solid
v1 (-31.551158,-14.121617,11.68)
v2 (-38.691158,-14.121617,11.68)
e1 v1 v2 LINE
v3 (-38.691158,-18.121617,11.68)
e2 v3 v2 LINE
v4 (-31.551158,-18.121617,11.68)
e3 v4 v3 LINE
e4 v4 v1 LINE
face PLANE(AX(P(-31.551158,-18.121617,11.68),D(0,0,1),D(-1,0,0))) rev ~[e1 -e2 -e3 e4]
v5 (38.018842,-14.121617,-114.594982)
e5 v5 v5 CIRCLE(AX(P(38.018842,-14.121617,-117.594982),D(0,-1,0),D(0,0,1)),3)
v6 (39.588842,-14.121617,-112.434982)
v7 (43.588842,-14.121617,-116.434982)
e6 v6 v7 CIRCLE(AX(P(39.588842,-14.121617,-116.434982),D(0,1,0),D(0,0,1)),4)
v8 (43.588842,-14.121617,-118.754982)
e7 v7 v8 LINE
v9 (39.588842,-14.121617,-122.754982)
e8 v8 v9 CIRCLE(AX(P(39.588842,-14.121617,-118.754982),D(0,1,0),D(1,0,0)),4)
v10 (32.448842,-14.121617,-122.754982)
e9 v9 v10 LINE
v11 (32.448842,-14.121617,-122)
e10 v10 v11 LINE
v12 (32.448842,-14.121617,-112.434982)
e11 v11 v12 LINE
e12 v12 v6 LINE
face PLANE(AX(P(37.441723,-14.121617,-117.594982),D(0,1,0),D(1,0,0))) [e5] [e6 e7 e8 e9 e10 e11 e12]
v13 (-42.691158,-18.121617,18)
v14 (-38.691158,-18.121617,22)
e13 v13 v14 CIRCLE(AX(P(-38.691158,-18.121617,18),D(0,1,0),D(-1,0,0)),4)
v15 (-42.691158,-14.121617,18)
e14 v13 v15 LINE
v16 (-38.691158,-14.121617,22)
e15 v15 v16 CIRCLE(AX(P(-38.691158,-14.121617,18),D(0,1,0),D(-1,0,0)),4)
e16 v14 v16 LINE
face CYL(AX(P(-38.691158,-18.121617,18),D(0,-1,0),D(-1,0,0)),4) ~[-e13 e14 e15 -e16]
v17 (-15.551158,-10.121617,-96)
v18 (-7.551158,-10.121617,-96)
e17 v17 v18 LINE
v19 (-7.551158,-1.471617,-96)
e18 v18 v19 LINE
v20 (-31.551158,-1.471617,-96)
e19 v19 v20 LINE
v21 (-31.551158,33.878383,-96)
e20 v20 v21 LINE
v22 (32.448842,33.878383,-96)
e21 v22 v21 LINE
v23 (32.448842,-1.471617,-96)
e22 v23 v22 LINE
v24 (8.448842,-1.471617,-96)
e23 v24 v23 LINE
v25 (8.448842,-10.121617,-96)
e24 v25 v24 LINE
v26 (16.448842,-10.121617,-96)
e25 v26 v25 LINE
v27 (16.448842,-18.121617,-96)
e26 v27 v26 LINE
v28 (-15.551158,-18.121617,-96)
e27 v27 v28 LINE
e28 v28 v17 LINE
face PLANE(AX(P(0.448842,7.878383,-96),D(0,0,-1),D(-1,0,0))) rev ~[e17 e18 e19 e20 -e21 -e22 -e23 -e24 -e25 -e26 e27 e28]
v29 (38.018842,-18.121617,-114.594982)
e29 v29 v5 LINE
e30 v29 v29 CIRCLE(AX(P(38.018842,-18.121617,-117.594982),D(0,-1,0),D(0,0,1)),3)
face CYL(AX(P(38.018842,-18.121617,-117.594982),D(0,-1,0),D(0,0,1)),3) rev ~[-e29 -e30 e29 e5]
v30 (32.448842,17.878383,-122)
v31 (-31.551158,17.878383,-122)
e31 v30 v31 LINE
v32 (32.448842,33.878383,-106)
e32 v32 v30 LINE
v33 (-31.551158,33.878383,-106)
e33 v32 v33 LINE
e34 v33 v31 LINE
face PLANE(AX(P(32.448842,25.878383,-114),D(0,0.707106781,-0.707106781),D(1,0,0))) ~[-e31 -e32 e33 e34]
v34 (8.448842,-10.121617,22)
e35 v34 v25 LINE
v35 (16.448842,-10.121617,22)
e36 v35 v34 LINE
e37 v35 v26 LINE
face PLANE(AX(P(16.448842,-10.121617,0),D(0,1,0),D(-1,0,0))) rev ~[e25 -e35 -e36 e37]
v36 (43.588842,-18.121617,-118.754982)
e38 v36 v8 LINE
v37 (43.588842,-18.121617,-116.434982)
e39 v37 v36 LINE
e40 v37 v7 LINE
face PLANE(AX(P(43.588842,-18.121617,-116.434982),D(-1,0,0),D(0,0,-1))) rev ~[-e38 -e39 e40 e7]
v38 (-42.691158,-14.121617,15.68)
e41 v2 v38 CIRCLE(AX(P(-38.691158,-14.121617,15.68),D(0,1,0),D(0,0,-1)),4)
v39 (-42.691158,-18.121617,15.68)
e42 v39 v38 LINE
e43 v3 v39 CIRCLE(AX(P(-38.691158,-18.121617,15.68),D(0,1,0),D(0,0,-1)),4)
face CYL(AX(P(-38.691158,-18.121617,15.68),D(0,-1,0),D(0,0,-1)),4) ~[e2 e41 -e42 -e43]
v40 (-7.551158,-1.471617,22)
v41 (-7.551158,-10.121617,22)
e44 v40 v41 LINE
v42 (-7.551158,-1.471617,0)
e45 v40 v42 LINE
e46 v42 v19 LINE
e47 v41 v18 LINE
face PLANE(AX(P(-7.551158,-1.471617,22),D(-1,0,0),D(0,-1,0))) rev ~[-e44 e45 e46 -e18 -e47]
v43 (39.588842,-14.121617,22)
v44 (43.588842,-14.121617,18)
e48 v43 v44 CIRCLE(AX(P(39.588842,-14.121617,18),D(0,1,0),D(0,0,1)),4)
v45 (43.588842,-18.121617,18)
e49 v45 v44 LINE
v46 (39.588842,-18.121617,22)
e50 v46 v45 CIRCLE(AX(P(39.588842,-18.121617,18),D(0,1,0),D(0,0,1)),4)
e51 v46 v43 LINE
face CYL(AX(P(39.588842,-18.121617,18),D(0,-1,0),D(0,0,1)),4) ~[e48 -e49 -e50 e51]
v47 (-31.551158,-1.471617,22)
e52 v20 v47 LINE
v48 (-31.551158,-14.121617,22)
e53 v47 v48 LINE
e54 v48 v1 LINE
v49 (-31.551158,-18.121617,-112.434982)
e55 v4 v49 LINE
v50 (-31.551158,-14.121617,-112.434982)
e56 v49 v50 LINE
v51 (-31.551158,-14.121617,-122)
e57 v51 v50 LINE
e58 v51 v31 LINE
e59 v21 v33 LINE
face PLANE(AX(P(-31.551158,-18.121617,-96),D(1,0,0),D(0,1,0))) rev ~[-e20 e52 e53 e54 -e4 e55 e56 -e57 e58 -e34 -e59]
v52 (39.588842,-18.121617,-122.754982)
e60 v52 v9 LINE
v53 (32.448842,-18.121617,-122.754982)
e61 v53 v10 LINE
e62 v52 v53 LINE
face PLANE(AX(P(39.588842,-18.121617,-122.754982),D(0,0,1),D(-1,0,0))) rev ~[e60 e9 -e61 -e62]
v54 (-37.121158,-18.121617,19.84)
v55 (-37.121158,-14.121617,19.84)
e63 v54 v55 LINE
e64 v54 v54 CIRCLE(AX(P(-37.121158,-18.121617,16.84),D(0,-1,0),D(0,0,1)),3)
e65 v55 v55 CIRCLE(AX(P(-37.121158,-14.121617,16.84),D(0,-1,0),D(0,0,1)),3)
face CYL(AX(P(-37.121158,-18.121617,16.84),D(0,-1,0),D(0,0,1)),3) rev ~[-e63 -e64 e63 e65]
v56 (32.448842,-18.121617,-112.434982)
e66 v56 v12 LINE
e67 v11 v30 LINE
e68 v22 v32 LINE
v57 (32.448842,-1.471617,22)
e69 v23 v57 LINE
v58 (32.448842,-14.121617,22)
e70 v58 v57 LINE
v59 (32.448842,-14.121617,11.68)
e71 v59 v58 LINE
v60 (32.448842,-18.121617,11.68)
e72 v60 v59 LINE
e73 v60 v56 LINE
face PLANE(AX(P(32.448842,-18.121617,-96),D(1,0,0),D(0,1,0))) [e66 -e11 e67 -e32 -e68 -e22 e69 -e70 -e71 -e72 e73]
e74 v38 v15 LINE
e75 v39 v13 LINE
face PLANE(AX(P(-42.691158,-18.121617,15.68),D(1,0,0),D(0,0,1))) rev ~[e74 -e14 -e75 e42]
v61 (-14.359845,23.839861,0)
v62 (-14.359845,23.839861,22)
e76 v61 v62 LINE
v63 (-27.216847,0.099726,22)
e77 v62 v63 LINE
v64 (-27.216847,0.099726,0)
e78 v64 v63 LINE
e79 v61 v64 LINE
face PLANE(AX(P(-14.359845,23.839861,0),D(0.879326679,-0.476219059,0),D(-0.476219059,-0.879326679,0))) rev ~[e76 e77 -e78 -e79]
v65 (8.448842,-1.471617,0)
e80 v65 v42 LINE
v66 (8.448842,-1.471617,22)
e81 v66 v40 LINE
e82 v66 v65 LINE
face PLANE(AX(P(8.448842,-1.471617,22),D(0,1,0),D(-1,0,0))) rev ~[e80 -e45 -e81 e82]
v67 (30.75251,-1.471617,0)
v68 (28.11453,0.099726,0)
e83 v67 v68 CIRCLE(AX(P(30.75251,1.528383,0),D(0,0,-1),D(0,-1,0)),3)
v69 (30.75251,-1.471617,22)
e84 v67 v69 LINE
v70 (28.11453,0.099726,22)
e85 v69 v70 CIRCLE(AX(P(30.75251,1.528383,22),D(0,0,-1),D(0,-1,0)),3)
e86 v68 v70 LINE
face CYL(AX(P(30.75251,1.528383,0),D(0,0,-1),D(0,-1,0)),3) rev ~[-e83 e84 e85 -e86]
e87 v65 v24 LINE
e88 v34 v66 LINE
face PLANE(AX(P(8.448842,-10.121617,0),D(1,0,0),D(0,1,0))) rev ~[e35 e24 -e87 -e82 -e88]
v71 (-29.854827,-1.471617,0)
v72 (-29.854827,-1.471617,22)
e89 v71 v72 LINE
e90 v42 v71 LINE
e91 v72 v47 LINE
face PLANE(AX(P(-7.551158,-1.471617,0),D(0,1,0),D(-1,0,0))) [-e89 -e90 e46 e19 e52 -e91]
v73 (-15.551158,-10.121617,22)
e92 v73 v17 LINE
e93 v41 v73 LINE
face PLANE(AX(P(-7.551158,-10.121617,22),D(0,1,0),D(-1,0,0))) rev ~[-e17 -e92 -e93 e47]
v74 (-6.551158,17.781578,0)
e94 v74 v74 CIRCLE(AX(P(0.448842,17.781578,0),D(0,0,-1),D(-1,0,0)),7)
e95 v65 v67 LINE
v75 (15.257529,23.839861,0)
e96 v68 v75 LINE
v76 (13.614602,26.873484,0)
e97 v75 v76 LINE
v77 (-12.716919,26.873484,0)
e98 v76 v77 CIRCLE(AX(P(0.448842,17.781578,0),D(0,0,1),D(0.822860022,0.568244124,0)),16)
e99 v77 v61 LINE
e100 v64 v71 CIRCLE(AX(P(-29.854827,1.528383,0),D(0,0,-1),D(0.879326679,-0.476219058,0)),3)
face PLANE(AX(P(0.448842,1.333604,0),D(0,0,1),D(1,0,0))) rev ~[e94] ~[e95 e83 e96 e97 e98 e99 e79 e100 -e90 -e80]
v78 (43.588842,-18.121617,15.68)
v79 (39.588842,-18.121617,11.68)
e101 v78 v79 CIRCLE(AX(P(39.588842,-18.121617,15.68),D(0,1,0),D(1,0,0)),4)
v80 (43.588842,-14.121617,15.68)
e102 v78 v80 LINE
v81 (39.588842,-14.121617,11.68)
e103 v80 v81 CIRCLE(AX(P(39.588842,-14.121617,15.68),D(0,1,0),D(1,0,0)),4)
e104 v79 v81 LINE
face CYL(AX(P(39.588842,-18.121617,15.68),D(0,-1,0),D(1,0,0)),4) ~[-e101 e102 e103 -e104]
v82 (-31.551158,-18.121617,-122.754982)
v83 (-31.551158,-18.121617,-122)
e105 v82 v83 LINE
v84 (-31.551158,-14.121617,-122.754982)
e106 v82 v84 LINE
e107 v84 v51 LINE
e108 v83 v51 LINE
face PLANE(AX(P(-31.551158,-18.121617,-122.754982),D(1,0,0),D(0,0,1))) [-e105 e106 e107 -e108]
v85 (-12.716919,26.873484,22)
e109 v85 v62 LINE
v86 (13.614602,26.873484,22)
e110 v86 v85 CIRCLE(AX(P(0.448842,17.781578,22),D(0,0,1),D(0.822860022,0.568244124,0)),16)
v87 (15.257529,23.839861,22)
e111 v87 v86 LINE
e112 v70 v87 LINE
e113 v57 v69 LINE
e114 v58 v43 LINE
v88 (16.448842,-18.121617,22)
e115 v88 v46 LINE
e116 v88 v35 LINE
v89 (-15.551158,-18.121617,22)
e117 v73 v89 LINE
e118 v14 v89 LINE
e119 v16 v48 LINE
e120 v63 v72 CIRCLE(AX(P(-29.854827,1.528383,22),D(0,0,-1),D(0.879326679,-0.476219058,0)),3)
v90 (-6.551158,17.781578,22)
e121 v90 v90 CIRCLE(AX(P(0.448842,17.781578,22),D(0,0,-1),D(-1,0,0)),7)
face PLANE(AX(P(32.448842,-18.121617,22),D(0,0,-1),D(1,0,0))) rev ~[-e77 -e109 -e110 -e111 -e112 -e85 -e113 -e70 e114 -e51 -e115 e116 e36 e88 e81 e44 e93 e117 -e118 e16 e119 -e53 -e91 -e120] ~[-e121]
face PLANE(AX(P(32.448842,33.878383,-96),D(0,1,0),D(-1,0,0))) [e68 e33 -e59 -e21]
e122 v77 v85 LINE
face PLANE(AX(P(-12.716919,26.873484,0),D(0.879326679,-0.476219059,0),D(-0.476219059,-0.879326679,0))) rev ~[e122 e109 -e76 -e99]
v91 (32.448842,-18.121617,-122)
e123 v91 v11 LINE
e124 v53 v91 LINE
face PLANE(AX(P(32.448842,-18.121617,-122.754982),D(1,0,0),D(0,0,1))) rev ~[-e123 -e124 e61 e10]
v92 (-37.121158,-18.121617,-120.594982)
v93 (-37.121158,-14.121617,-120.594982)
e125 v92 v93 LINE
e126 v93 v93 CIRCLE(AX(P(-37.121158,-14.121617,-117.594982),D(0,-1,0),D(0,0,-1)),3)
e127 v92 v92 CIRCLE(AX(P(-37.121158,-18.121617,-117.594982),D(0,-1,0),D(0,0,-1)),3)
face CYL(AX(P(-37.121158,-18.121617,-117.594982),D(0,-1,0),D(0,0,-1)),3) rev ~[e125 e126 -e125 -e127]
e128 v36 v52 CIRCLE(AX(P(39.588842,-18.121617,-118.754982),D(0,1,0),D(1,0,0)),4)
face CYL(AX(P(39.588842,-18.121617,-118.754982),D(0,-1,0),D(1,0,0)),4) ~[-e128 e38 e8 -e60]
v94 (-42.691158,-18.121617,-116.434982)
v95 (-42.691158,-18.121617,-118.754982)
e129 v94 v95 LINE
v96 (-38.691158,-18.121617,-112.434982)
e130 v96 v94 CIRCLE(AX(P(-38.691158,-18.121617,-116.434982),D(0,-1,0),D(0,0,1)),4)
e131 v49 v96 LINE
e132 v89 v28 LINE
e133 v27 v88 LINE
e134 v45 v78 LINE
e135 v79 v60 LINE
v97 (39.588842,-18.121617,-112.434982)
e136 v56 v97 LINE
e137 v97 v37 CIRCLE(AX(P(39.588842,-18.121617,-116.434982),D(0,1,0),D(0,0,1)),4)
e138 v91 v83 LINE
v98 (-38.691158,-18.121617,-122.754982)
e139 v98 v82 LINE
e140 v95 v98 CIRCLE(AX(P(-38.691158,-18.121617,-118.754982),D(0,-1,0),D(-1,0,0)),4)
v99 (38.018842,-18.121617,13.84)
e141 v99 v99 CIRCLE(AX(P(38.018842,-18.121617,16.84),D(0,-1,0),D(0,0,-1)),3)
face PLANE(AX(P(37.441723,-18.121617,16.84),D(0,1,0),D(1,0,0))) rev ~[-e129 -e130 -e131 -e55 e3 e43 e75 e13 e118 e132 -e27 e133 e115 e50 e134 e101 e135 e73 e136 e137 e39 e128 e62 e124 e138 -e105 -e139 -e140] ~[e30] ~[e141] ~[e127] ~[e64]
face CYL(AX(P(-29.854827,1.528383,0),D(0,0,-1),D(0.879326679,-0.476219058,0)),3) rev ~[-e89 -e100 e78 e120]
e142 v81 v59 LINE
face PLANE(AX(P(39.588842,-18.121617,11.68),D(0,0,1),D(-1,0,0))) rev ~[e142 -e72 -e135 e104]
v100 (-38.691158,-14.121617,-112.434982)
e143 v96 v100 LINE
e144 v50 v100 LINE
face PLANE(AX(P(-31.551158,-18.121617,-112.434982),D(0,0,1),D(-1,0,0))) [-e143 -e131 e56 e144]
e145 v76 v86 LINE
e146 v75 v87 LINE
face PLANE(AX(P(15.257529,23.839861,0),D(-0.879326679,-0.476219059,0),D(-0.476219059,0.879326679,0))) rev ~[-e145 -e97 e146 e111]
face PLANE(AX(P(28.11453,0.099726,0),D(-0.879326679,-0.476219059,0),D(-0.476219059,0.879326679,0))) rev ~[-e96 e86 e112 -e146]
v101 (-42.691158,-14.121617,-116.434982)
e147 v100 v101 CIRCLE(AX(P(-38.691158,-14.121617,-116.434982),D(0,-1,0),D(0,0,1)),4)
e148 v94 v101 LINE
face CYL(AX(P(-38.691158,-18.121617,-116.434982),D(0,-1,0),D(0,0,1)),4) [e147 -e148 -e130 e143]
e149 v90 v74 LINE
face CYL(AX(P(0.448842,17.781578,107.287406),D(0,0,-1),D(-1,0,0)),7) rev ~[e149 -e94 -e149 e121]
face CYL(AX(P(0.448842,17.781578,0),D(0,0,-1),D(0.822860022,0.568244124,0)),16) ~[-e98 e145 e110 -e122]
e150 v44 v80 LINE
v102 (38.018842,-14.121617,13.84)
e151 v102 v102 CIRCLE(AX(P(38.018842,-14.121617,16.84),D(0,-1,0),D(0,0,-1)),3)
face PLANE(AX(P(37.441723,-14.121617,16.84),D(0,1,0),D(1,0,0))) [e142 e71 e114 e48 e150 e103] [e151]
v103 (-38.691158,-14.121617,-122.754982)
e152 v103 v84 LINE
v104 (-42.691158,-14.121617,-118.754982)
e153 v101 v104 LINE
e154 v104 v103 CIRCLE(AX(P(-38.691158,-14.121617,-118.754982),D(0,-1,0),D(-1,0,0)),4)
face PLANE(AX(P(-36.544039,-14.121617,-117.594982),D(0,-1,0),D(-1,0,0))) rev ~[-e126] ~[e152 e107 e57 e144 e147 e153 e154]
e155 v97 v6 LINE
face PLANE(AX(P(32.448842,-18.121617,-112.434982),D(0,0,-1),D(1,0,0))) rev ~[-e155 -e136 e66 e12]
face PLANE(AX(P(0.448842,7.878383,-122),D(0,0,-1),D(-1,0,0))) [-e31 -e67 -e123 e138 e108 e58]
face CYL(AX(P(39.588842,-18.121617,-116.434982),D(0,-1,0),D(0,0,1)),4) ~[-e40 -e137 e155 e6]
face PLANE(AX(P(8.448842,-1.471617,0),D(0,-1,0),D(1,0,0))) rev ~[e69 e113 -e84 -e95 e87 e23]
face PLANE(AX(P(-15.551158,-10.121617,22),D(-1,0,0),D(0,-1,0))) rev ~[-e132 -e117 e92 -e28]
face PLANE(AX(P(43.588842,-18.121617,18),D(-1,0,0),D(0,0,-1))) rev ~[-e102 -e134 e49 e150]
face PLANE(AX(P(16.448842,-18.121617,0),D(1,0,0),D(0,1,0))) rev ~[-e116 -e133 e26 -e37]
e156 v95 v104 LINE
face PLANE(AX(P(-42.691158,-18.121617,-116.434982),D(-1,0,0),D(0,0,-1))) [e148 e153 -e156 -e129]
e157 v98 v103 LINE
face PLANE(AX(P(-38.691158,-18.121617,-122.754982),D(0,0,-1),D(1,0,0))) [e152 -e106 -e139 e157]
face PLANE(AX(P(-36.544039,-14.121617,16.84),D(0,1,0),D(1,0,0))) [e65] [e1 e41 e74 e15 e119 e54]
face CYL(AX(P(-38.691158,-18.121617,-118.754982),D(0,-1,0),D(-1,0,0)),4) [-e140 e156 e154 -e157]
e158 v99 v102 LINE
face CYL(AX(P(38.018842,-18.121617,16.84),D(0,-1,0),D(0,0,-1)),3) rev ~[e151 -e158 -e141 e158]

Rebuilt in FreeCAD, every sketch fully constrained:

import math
import FreeCAD as App
import Part
import Sketcher


def edges_at(feature, points):
    """Names of the edges that pass closest to the given points."""
    edges = feature.Shape.Edges
    near = lambda p: min(range(len(edges)), key=lambda i: edges[i].distToShape(Part.Vertex(*p))[0])
    return sorted({f"Edge{near(p) + 1}" for p in points})

doc = App.newDocument("Part")
body = doc.addObject("PartDesign::Body", "Body")

# Sketch on XY plane
sketch1 = body.newObject("Sketcher::SketchObject", "Sketch")
sketch1.AttachmentSupport = (doc.getObject("XY_Plane"), [""])
sketch1.MapMode = "FlatFace"
sketch1.addGeometry(Part.LineSegment(App.Vector(-31.6, -1.5, 0), App.Vector(-31.6, -18.1, 0)), False)
sketch1.addGeometry(Part.LineSegment(App.Vector(-31.6, -18.1, 0), App.Vector(32.4, -18.1, 0)), False)
sketch1.addGeometry(Part.LineSegment(App.Vector(32.4, -18.1, 0), App.Vector(32.4, -1.5, 0)), False)
sketch1.addGeometry(Part.LineSegment(App.Vector(32.4, -1.5, 0), App.Vector(30.8, -1.5, 0)), False)
sketch1.addGeometry(Part.ArcOfCircle(Part.Circle(App.Vector(30.8, 1.5, 0), App.Vector(0, 0, 1), 3), math.radians(-152), math.radians(-90)), False)
sketch1.addGeometry(Part.LineSegment(App.Vector(28.1, 0.1, 0), App.Vector(15.3, 23.8, 0)), False)
sketch1.addGeometry(Part.LineSegment(App.Vector(15.3, 23.8, 0), App.Vector(13.6, 26.9, 0)), False)
sketch1.addGeometry(Part.ArcOfCircle(Part.Circle(App.Vector(0.4, 17.8, 0), App.Vector(0, 0, 1), 16), math.radians(35), math.radians(145)), False)
sketch1.addGeometry(Part.LineSegment(App.Vector(-12.7, 26.9, 0), App.Vector(-14.4, 23.8, 0)), False)
sketch1.addGeometry(Part.LineSegment(App.Vector(-14.4, 23.8, 0), App.Vector(-27.2, 0.1, 0)), False)
sketch1.addGeometry(Part.ArcOfCircle(Part.Circle(App.Vector(-29.9, 1.5, 0), App.Vector(0, 0, 1), 3), math.radians(-90), math.radians(-28)), False)
sketch1.addGeometry(Part.LineSegment(App.Vector(-29.9, -1.5, 0), App.Vector(-31.6, -1.5, 0)), False)
sketch1.addConstraint(Sketcher.Constraint("Coincident", 0, 2, 1, 1))
sketch1.addConstraint(Sketcher.Constraint("Coincident", 1, 2, 2, 1))
sketch1.addConstraint(Sketcher.Constraint("Coincident", 2, 2, 3, 1))
sketch1.addConstraint(Sketcher.Constraint("Tangent", 3, 2, 4, 2))
sketch1.addConstraint(Sketcher.Constraint("Tangent", 4, 1, 5, 1))
sketch1.addConstraint(Sketcher.Constraint("Coincident", 5, 2, 6, 1))
sketch1.addConstraint(Sketcher.Constraint("Coincident", 6, 2, 7, 1))
sketch1.addConstraint(Sketcher.Constraint("Coincident", 7, 2, 8, 1))
sketch1.addConstraint(Sketcher.Constraint("Coincident", 8, 2, 9, 1))
sketch1.addConstraint(Sketcher.Constraint("Tangent", 9, 2, 10, 2))
sketch1.addConstraint(Sketcher.Constraint("Tangent", 10, 1, 11, 1))
sketch1.addConstraint(Sketcher.Constraint("Coincident", 11, 2, 0, 1))
sketch1.addConstraint(Sketcher.Constraint("Vertical", 0))
sketch1.addConstraint(Sketcher.Constraint("Horizontal", 1))
sketch1.addConstraint(Sketcher.Constraint("Vertical", 2))
sketch1.addConstraint(Sketcher.Constraint("Horizontal", 3))
sketch1.addConstraint(Sketcher.Constraint("Horizontal", 11))
sketch1.addConstraint(Sketcher.Constraint("Equal", 4, 10))
sketch1.addConstraint(Sketcher.Constraint("Parallel", 5, 6))
sketch1.addConstraint(Sketcher.Constraint("Parallel", 8, 9))
sketch1.addConstraint(Sketcher.Constraint("Horizontal", 4, 3, 10, 3))
sketch1.addConstraint(Sketcher.Constraint("Horizontal", 6, 2, 7, 2))
sketch1.addConstraint(Sketcher.Constraint("Horizontal", 5, 2, 8, 2))
sketch1.addConstraint(Sketcher.Constraint("Horizontal", 4, 1, 9, 2))
sketch1.addConstraint(Sketcher.Constraint("Equal", 3, 11))
sketch1.addConstraint(Sketcher.Constraint("Radius", 4, 3.0))
sketch1.addConstraint(Sketcher.Constraint("Radius", 7, 16.0))
sketch1.addConstraint(Sketcher.Constraint("DistanceX", 1, 1, 1, 2, 64.0))
sketch1.addConstraint(Sketcher.Constraint("DistanceY", 0, 2, 0, 1, 16.65))
sketch1.addConstraint(Sketcher.Constraint("DistanceX", 5, 2, 4, 1, 12.857002))
sketch1.addConstraint(Sketcher.Constraint("DistanceX", 3, 2, 3, 1, 1.696331))
sketch1.addConstraint(Sketcher.Constraint("DistanceX", -1, 1, 6, 2, 13.614602))
sketch1.addConstraint(Sketcher.Constraint("DistanceY", 4, 3, 6, 2, 25.345101))
sketch1.addConstraint(Sketcher.Constraint("Distance", 6, 3.449939))
sketch1.addConstraint(Sketcher.Constraint("DistanceY", -1, 1, 7, 3, 17.781578))
pad1 = body.newObject("PartDesign::Pad", "Pad")
pad1.Profile = sketch1
pad1.Length = 22

# Sketch on XY plane
sketch2 = body.newObject("Sketcher::SketchObject", "Sketch001")
sketch2.AttachmentSupport = (doc.getObject("XY_Plane"), [""])
sketch2.MapMode = "FlatFace"
sketch2.AttachmentOffset = App.Placement(App.Vector(0, 0, 22), App.Rotation())
sketch2.addGeometry(Part.Circle(App.Vector(0, 18, 0), App.Vector(0, 0, 1), 7), False)
sketch2.addConstraint(Sketcher.Constraint("Diameter", 0, 14.0))
sketch2.addConstraint(Sketcher.Constraint("DistanceX", -1, 1, 0, 3, 0.448842))
sketch2.addConstraint(Sketcher.Constraint("DistanceY", -1, 1, 0, 3, 17.781578))
doc.recompute()
hole = body.newObject("PartDesign::Hole", "Hole")
hole.Profile = sketch2
hole.ThreadType = "None"
hole.Diameter = 14
hole.DepthType = "ThroughAll"

# Sketch on XY plane
sketch3 = body.newObject("Sketcher::SketchObject", "Sketch002")
sketch3.AttachmentSupport = (doc.getObject("XY_Plane"), [""])
sketch3.MapMode = "FlatFace"
sketch3.addGeometry(Part.LineSegment(App.Vector(16, -10, 0), App.Vector(16, -18, 0)), False)
sketch3.addGeometry(Part.LineSegment(App.Vector(16, -18, 0), App.Vector(32, -18, 0)), False)
sketch3.addGeometry(Part.LineSegment(App.Vector(32, -18, 0), App.Vector(32, -1, 0)), False)
sketch3.addGeometry(Part.LineSegment(App.Vector(32, -1, 0), App.Vector(8, -1, 0)), False)
sketch3.addGeometry(Part.LineSegment(App.Vector(8, -1, 0), App.Vector(8, -10, 0)), False)
sketch3.addGeometry(Part.LineSegment(App.Vector(8, -10, 0), App.Vector(16, -10, 0)), False)
sketch3.addGeometry(Part.LineSegment(App.Vector(-8, -10, 0), App.Vector(-8, -1, 0)), False)
sketch3.addGeometry(Part.LineSegment(App.Vector(-8, -1, 0), App.Vector(-32, -1, 0)), False)
sketch3.addGeometry(Part.LineSegment(App.Vector(-32, -1, 0), App.Vector(-32, -18, 0)), False)
sketch3.addGeometry(Part.LineSegment(App.Vector(-32, -18, 0), App.Vector(-16, -18, 0)), False)
sketch3.addGeometry(Part.LineSegment(App.Vector(-16, -18, 0), App.Vector(-16, -10, 0)), False)
sketch3.addGeometry(Part.LineSegment(App.Vector(-16, -10, 0), App.Vector(-8, -10, 0)), False)
sketch3.addConstraint(Sketcher.Constraint("Coincident", 0, 2, 1, 1))
sketch3.addConstraint(Sketcher.Constraint("Coincident", 1, 2, 2, 1))
sketch3.addConstraint(Sketcher.Constraint("Coincident", 2, 2, 3, 1))
sketch3.addConstraint(Sketcher.Constraint("Coincident", 3, 2, 4, 1))
sketch3.addConstraint(Sketcher.Constraint("Coincident", 4, 2, 5, 1))
sketch3.addConstraint(Sketcher.Constraint("Coincident", 5, 2, 0, 1))
sketch3.addConstraint(Sketcher.Constraint("Coincident", 6, 2, 7, 1))
sketch3.addConstraint(Sketcher.Constraint("Coincident", 7, 2, 8, 1))
sketch3.addConstraint(Sketcher.Constraint("Coincident", 8, 2, 9, 1))
sketch3.addConstraint(Sketcher.Constraint("Coincident", 9, 2, 10, 1))
sketch3.addConstraint(Sketcher.Constraint("Coincident", 10, 2, 11, 1))
sketch3.addConstraint(Sketcher.Constraint("Coincident", 11, 2, 6, 1))
sketch3.addConstraint(Sketcher.Constraint("Vertical", 0))
sketch3.addConstraint(Sketcher.Constraint("Horizontal", 1))
sketch3.addConstraint(Sketcher.Constraint("Vertical", 2))
sketch3.addConstraint(Sketcher.Constraint("Horizontal", 3))
sketch3.addConstraint(Sketcher.Constraint("Vertical", 4))
sketch3.addConstraint(Sketcher.Constraint("Horizontal", 5))
sketch3.addConstraint(Sketcher.Constraint("Vertical", 6))
sketch3.addConstraint(Sketcher.Constraint("Horizontal", 7))
sketch3.addConstraint(Sketcher.Constraint("Vertical", 8))
sketch3.addConstraint(Sketcher.Constraint("Horizontal", 9))
sketch3.addConstraint(Sketcher.Constraint("Vertical", 10))
sketch3.addConstraint(Sketcher.Constraint("Horizontal", 11))
sketch3.addConstraint(Sketcher.Constraint("Horizontal", 3, 2, 6, 2))
sketch3.addConstraint(Sketcher.Constraint("Horizontal", 1, 2, 8, 2))
sketch3.addConstraint(Sketcher.Constraint("Horizontal", 5, 2, 10, 2))
sketch3.addConstraint(Sketcher.Constraint("Equal", 3, 7))
sketch3.addConstraint(Sketcher.Constraint("Equal", 1, 9))
sketch3.addConstraint(Sketcher.Constraint("Equal", 11, 0))
sketch3.addConstraint(Sketcher.Constraint("DistanceX", 1, 1, 1, 2, 16.0))
sketch3.addConstraint(Sketcher.Constraint("DistanceX", 3, 2, 3, 1, 24.0))
sketch3.addConstraint(Sketcher.Constraint("DistanceX", 6, 2, 3, 2, 16.0))
sketch3.addConstraint(Sketcher.Constraint("DistanceY", 2, 1, 2, 2, 16.65))
sketch3.addConstraint(Sketcher.Constraint("DistanceX", -1, 1, 0, 2, 16.448842))
sketch3.addConstraint(Sketcher.Constraint("DistanceY", 0, 2, -1, 1, 18.121617))
pad2 = body.newObject("PartDesign::Pad", "Pad001")
pad2.Profile = sketch3
pad2.Length = 96
pad2.Reversed = True

# Sketch on XY plane
sketch4 = body.newObject("Sketcher::SketchObject", "Sketch003")
sketch4.AttachmentSupport = (doc.getObject("XY_Plane"), [""])
sketch4.MapMode = "FlatFace"
sketch4.AttachmentOffset = App.Placement(App.Vector(0, 0, 22), App.Rotation())
sketch4.addGeometry(Part.LineSegment(App.Vector(-16, -18, 0), App.Vector(16, -18, 0)), False)
sketch4.addGeometry(Part.LineSegment(App.Vector(16, -18, 0), App.Vector(16, -10, 0)), False)
sketch4.addGeometry(Part.LineSegment(App.Vector(16, -10, 0), App.Vector(8, -10, 0)), False)
sketch4.addGeometry(Part.LineSegment(App.Vector(8, -10, 0), App.Vector(8, -1, 0)), False)
sketch4.addGeometry(Part.LineSegment(App.Vector(8, -1, 0), App.Vector(-8, -1, 0)), False)
sketch4.addGeometry(Part.LineSegment(App.Vector(-8, -1, 0), App.Vector(-8, -10, 0)), False)
sketch4.addGeometry(Part.LineSegment(App.Vector(-8, -10, 0), App.Vector(-16, -10, 0)), False)
sketch4.addGeometry(Part.LineSegment(App.Vector(-16, -10, 0), App.Vector(-16, -18, 0)), False)
sketch4.addConstraint(Sketcher.Constraint("Coincident", 0, 2, 1, 1))
sketch4.addConstraint(Sketcher.Constraint("Coincident", 1, 2, 2, 1))
sketch4.addConstraint(Sketcher.Constraint("Coincident", 2, 2, 3, 1))
sketch4.addConstraint(Sketcher.Constraint("Coincident", 3, 2, 4, 1))
sketch4.addConstraint(Sketcher.Constraint("Coincident", 4, 2, 5, 1))
sketch4.addConstraint(Sketcher.Constraint("Coincident", 5, 2, 6, 1))
sketch4.addConstraint(Sketcher.Constraint("Coincident", 6, 2, 7, 1))
sketch4.addConstraint(Sketcher.Constraint("Coincident", 7, 2, 0, 1))
sketch4.addConstraint(Sketcher.Constraint("Horizontal", 0))
sketch4.addConstraint(Sketcher.Constraint("Vertical", 1))
sketch4.addConstraint(Sketcher.Constraint("Horizontal", 2))
sketch4.addConstraint(Sketcher.Constraint("Vertical", 3))
sketch4.addConstraint(Sketcher.Constraint("Horizontal", 4))
sketch4.addConstraint(Sketcher.Constraint("Vertical", 5))
sketch4.addConstraint(Sketcher.Constraint("Horizontal", 6))
sketch4.addConstraint(Sketcher.Constraint("Vertical", 7))
sketch4.addConstraint(Sketcher.Constraint("Horizontal", 2, 2, 5, 2))
sketch4.addConstraint(Sketcher.Constraint("Equal", 2, 6))
sketch4.addConstraint(Sketcher.Constraint("Equal", 6, 1))
sketch4.addConstraint(Sketcher.Constraint("DistanceX", 0, 1, 0, 2, 32.0))
sketch4.addConstraint(Sketcher.Constraint("DistanceX", 2, 2, 2, 1, 8.0))
sketch4.addConstraint(Sketcher.Constraint("DistanceY", 3, 1, 3, 2, 8.65))
sketch4.addConstraint(Sketcher.Constraint("DistanceX", -1, 1, 0, 2, 16.448842))
sketch4.addConstraint(Sketcher.Constraint("DistanceY", 0, 2, -1, 1, 18.121617))
pocket1 = body.newObject("PartDesign::Pocket", "Pocket")
pocket1.Profile = sketch4
pocket1.Type = "ThroughAll"

# Sketch on XY plane
sketch5 = body.newObject("Sketcher::SketchObject", "Sketch004")
sketch5.AttachmentSupport = (doc.getObject("XY_Plane"), [""])
sketch5.MapMode = "FlatFace"
sketch5.AttachmentOffset = App.Placement(App.Vector(0, 0, -96), App.Rotation())
sketch5.addGeometry(Part.LineSegment(App.Vector(32, 34, 0), App.Vector(32, -18, 0)), False)
sketch5.addGeometry(Part.LineSegment(App.Vector(32, -18, 0), App.Vector(-32, -18, 0)), False)
sketch5.addGeometry(Part.LineSegment(App.Vector(-32, -18, 0), App.Vector(-32, 34, 0)), False)
sketch5.addGeometry(Part.LineSegment(App.Vector(-32, 34, 0), App.Vector(32, 34, 0)), False)
sketch5.addConstraint(Sketcher.Constraint("Coincident", 0, 2, 1, 1))
sketch5.addConstraint(Sketcher.Constraint("Coincident", 1, 2, 2, 1))
sketch5.addConstraint(Sketcher.Constraint("Coincident", 2, 2, 3, 1))
sketch5.addConstraint(Sketcher.Constraint("Coincident", 3, 2, 0, 1))
sketch5.addConstraint(Sketcher.Constraint("Vertical", 0))
sketch5.addConstraint(Sketcher.Constraint("Horizontal", 1))
sketch5.addConstraint(Sketcher.Constraint("Vertical", 2))
sketch5.addConstraint(Sketcher.Constraint("Horizontal", 3))
sketch5.addConstraint(Sketcher.Constraint("DistanceX", 1, 2, 1, 1, 64.0))
sketch5.addConstraint(Sketcher.Constraint("DistanceY", 0, 2, 0, 1, 52.0))
sketch5.addConstraint(Sketcher.Constraint("DistanceX", -1, 1, 0, 2, 32.448842))
sketch5.addConstraint(Sketcher.Constraint("DistanceY", 0, 2, -1, 1, 18.121617))
pad3 = body.newObject("PartDesign::Pad", "Pad002")
pad3.Profile = sketch5
pad3.Length = 26
pad3.Reversed = True
doc.recompute()

chamfer = body.newObject("PartDesign::Chamfer", "Chamfer")
chamfer.Base = (pad3, edges_at(pad3, [(0.449, 33.878, -122)]))
chamfer.Size = 16

# Sketch on XZ plane
sketch6 = body.newObject("Sketcher::SketchObject", "Sketch005")
sketch6.AttachmentSupport = (doc.getObject("XZ_Plane"), [""])
sketch6.MapMode = "FlatFace"
sketch6.AttachmentOffset = App.Placement(App.Vector(0, 0, 18.121617), App.Rotation())
sketch6.addGeometry(Part.LineSegment(App.Vector(39.6, 22, 0), App.Vector(32.4, 22, 0)), False)
sketch6.addGeometry(Part.LineSegment(App.Vector(32.4, 22, 0), App.Vector(32.4, 11.7, 0)), False)
sketch6.addGeometry(Part.LineSegment(App.Vector(32.4, 11.7, 0), App.Vector(39.6, 11.7, 0)), False)
sketch6.addGeometry(Part.ArcOfCircle(Part.Circle(App.Vector(39.6, 15.7, 0), App.Vector(0, 0, 1), 4), math.radians(-90), math.radians(0)), False)
sketch6.addGeometry(Part.LineSegment(App.Vector(43.6, 15.7, 0), App.Vector(43.6, 18, 0)), False)
sketch6.addGeometry(Part.ArcOfCircle(Part.Circle(App.Vector(39.6, 18, 0), App.Vector(0, 0, 1), 4), math.radians(0), math.radians(90)), False)
sketch6.addGeometry(Part.Circle(App.Vector(38, 16.8, 0), App.Vector(0, 0, 1), 3), False)
sketch6.addGeometry(Part.LineSegment(App.Vector(-38.7, 11.7, 0), App.Vector(-31.6, 11.7, 0)), False)
sketch6.addGeometry(Part.LineSegment(App.Vector(-31.6, 11.7, 0), App.Vector(-31.6, 22, 0)), False)
sketch6.addGeometry(Part.LineSegment(App.Vector(-31.6, 22, 0), App.Vector(-38.7, 22, 0)), False)
sketch6.addGeometry(Part.ArcOfCircle(Part.Circle(App.Vector(-38.7, 18, 0), App.Vector(0, 0, 1), 4), math.radians(90), math.radians(180)), False)
sketch6.addGeometry(Part.LineSegment(App.Vector(-42.7, 18, 0), App.Vector(-42.7, 15.7, 0)), False)
sketch6.addGeometry(Part.ArcOfCircle(Part.Circle(App.Vector(-38.7, 15.7, 0), App.Vector(0, 0, 1), 4), math.radians(-180), math.radians(-90)), False)
sketch6.addGeometry(Part.Circle(App.Vector(-37.1, 16.8, 0), App.Vector(0, 0, 1), 3), False)
sketch6.addGeometry(Part.LineSegment(App.Vector(39.6, -112.4, 0), App.Vector(32.4, -112.4, 0)), False)
sketch6.addGeometry(Part.LineSegment(App.Vector(32.4, -112.4, 0), App.Vector(32.4, -122.8, 0)), False)
sketch6.addGeometry(Part.LineSegment(App.Vector(32.4, -122.8, 0), App.Vector(39.6, -122.8, 0)), False)
sketch6.addGeometry(Part.ArcOfCircle(Part.Circle(App.Vector(39.6, -118.8, 0), App.Vector(0, 0, 1), 4), math.radians(-90), math.radians(0)), False)
sketch6.addGeometry(Part.LineSegment(App.Vector(43.6, -118.8, 0), App.Vector(43.6, -116.4, 0)), False)
sketch6.addGeometry(Part.ArcOfCircle(Part.Circle(App.Vector(39.6, -116.4, 0), App.Vector(0, 0, 1), 4), math.radians(0), math.radians(90)), False)
sketch6.addGeometry(Part.Circle(App.Vector(38, -117.6, 0), App.Vector(0, 0, 1), 3), False)
sketch6.addGeometry(Part.LineSegment(App.Vector(-31.6, -122.8, 0), App.Vector(-31.6, -112.4, 0)), False)
sketch6.addGeometry(Part.LineSegment(App.Vector(-31.6, -112.4, 0), App.Vector(-38.7, -112.4, 0)), False)
sketch6.addGeometry(Part.ArcOfCircle(Part.Circle(App.Vector(-38.7, -116.4, 0), App.Vector(0, 0, 1), 4), math.radians(90), math.radians(180)), False)
sketch6.addGeometry(Part.LineSegment(App.Vector(-42.7, -116.4, 0), App.Vector(-42.7, -118.8, 0)), False)
sketch6.addGeometry(Part.ArcOfCircle(Part.Circle(App.Vector(-38.7, -118.8, 0), App.Vector(0, 0, 1), 4), math.radians(-180), math.radians(-90)), False)
sketch6.addGeometry(Part.LineSegment(App.Vector(-38.7, -122.8, 0), App.Vector(-31.6, -122.8, 0)), False)
sketch6.addGeometry(Part.Circle(App.Vector(-37.1, -117.6, 0), App.Vector(0, 0, 1), 3), False)
sketch6.addConstraint(Sketcher.Constraint("Coincident", 0, 2, 1, 1))
sketch6.addConstraint(Sketcher.Constraint("Coincident", 1, 2, 2, 1))
sketch6.addConstraint(Sketcher.Constraint("Tangent", 2, 2, 3, 1))
sketch6.addConstraint(Sketcher.Constraint("Tangent", 3, 2, 4, 1))
sketch6.addConstraint(Sketcher.Constraint("Tangent", 4, 2, 5, 1))
sketch6.addConstraint(Sketcher.Constraint("Tangent", 5, 2, 0, 1))
sketch6.addConstraint(Sketcher.Constraint("Coincident", 7, 2, 8, 1))
sketch6.addConstraint(Sketcher.Constraint("Coincident", 8, 2, 9, 1))
sketch6.addConstraint(Sketcher.Constraint("Tangent", 9, 2, 10, 1))
sketch6.addConstraint(Sketcher.Constraint("Tangent", 10, 2, 11, 1))
sketch6.addConstraint(Sketcher.Constraint("Tangent", 11, 2, 12, 1))
sketch6.addConstraint(Sketcher.Constraint("Tangent", 12, 2, 7, 1))
sketch6.addConstraint(Sketcher.Constraint("Coincident", 14, 2, 15, 1))
sketch6.addConstraint(Sketcher.Constraint("Coincident", 15, 2, 16, 1))
sketch6.addConstraint(Sketcher.Constraint("Tangent", 16, 2, 17, 1))
sketch6.addConstraint(Sketcher.Constraint("Tangent", 17, 2, 18, 1))
sketch6.addConstraint(Sketcher.Constraint("Tangent", 18, 2, 19, 1))
sketch6.addConstraint(Sketcher.Constraint("Tangent", 19, 2, 14, 1))
sketch6.addConstraint(Sketcher.Constraint("Coincident", 21, 2, 22, 1))
sketch6.addConstraint(Sketcher.Constraint("Tangent", 22, 2, 23, 1))
sketch6.addConstraint(Sketcher.Constraint("Tangent", 23, 2, 24, 1))
sketch6.addConstraint(Sketcher.Constraint("Tangent", 24, 2, 25, 1))
sketch6.addConstraint(Sketcher.Constraint("Tangent", 25, 2, 26, 1))
sketch6.addConstraint(Sketcher.Constraint("Coincident", 26, 2, 21, 1))
sketch6.addConstraint(Sketcher.Constraint("Horizontal", 0))
sketch6.addConstraint(Sketcher.Constraint("Vertical", 1))
sketch6.addConstraint(Sketcher.Constraint("Horizontal", 2))
sketch6.addConstraint(Sketcher.Constraint("Vertical", 4))
sketch6.addConstraint(Sketcher.Constraint("Horizontal", 7))
sketch6.addConstraint(Sketcher.Constraint("Vertical", 8))
sketch6.addConstraint(Sketcher.Constraint("Horizontal", 9))
sketch6.addConstraint(Sketcher.Constraint("Vertical", 11))
sketch6.addConstraint(Sketcher.Constraint("Horizontal", 14))
sketch6.addConstraint(Sketcher.Constraint("Vertical", 15))
sketch6.addConstraint(Sketcher.Constraint("Horizontal", 16))
sketch6.addConstraint(Sketcher.Constraint("Vertical", 18))
sketch6.addConstraint(Sketcher.Constraint("Vertical", 21))
sketch6.addConstraint(Sketcher.Constraint("Horizontal", 22))
sketch6.addConstraint(Sketcher.Constraint("Vertical", 24))
sketch6.addConstraint(Sketcher.Constraint("Horizontal", 26))
sketch6.addConstraint(Sketcher.Constraint("Equal", 3, 5))
sketch6.addConstraint(Sketcher.Constraint("Equal", 5, 10))
sketch6.addConstraint(Sketcher.Constraint("Equal", 10, 12))
sketch6.addConstraint(Sketcher.Constraint("Equal", 6, 13))
sketch6.addConstraint(Sketcher.Constraint("Equal", 12, 17))
sketch6.addConstraint(Sketcher.Constraint("Equal", 17, 19))
sketch6.addConstraint(Sketcher.Constraint("Equal", 13, 20))
sketch6.addConstraint(Sketcher.Constraint("Equal", 19, 23))
sketch6.addConstraint(Sketcher.Constraint("Equal", 23, 25))
sketch6.addConstraint(Sketcher.Constraint("Equal", 20, 27))
sketch6.addConstraint(Sketcher.Constraint("Horizontal", 5, 3, 10, 3))
sketch6.addConstraint(Sketcher.Constraint("Horizontal", 3, 3, 12, 3))
sketch6.addConstraint(Sketcher.Constraint("Horizontal", 6, 3, 13, 3))
sketch6.addConstraint(Sketcher.Constraint("Horizontal", 19, 3, 23, 3))
sketch6.addConstraint(Sketcher.Constraint("Horizontal", 17, 3, 25, 3))
sketch6.addConstraint(Sketcher.Constraint("Horizontal", 20, 3, 27, 3))
sketch6.addConstraint(Sketcher.Constraint("Vertical", 5, 3, 17, 3))
sketch6.addConstraint(Sketcher.Constraint("Vertical", 6, 3, 20, 3))
sketch6.addConstraint(Sketcher.Constraint("Vertical", 12, 3, 23, 3))
sketch6.addConstraint(Sketcher.Constraint("Vertical", 13, 3, 27, 3))
sketch6.addConstraint(Sketcher.Constraint("Vertical", 1, 2, 14, 2))
sketch6.addConstraint(Sketcher.Constraint("Vertical", 8, 2, 21, 2))
sketch6.addConstraint(Sketcher.Constraint("Equal", 2, 7))
sketch6.addConstraint(Sketcher.Constraint("Equal", 8, 15))
sketch6.addConstraint(Sketcher.Constraint("Diameter", 6, 6.0))
sketch6.addConstraint(Sketcher.Constraint("Radius", 3, 4.0))
sketch6.addConstraint(Sketcher.Constraint("DistanceY", -1, 1, 5, 3, 18.0))
sketch6.addConstraint(Sketcher.Constraint("DistanceX", 7, 2, 1, 2, 64.0))
sketch6.addConstraint(Sketcher.Constraint("DistanceX", 0, 2, 0, 1, 7.14))
sketch6.addConstraint(Sketcher.Constraint("DistanceY", 1, 2, 1, 1, 10.32))
sketch6.addConstraint(Sketcher.Constraint("DistanceY", -1, 1, 6, 3, 16.84))
sketch6.addConstraint(Sketcher.Constraint("DistanceX", 6, 3, 3, 3, 1.57))
sketch6.addConstraint(Sketcher.Constraint("DistanceX", 10, 3, 13, 3, 1.57))
sketch6.addConstraint(Sketcher.Constraint("DistanceY", 17, 3, 20, 3, 1.16))
sketch6.addConstraint(Sketcher.Constraint("DistanceX", -1, 1, 3, 3, 39.588842))
sketch6.addConstraint(Sketcher.Constraint("DistanceY", 17, 3, -1, 1, 118.754982))
pad4 = body.newObject("PartDesign::Pad", "Pad003")
pad4.Profile = sketch6
pad4.Length = 4
pad4.Reversed = True

doc.recompute()
